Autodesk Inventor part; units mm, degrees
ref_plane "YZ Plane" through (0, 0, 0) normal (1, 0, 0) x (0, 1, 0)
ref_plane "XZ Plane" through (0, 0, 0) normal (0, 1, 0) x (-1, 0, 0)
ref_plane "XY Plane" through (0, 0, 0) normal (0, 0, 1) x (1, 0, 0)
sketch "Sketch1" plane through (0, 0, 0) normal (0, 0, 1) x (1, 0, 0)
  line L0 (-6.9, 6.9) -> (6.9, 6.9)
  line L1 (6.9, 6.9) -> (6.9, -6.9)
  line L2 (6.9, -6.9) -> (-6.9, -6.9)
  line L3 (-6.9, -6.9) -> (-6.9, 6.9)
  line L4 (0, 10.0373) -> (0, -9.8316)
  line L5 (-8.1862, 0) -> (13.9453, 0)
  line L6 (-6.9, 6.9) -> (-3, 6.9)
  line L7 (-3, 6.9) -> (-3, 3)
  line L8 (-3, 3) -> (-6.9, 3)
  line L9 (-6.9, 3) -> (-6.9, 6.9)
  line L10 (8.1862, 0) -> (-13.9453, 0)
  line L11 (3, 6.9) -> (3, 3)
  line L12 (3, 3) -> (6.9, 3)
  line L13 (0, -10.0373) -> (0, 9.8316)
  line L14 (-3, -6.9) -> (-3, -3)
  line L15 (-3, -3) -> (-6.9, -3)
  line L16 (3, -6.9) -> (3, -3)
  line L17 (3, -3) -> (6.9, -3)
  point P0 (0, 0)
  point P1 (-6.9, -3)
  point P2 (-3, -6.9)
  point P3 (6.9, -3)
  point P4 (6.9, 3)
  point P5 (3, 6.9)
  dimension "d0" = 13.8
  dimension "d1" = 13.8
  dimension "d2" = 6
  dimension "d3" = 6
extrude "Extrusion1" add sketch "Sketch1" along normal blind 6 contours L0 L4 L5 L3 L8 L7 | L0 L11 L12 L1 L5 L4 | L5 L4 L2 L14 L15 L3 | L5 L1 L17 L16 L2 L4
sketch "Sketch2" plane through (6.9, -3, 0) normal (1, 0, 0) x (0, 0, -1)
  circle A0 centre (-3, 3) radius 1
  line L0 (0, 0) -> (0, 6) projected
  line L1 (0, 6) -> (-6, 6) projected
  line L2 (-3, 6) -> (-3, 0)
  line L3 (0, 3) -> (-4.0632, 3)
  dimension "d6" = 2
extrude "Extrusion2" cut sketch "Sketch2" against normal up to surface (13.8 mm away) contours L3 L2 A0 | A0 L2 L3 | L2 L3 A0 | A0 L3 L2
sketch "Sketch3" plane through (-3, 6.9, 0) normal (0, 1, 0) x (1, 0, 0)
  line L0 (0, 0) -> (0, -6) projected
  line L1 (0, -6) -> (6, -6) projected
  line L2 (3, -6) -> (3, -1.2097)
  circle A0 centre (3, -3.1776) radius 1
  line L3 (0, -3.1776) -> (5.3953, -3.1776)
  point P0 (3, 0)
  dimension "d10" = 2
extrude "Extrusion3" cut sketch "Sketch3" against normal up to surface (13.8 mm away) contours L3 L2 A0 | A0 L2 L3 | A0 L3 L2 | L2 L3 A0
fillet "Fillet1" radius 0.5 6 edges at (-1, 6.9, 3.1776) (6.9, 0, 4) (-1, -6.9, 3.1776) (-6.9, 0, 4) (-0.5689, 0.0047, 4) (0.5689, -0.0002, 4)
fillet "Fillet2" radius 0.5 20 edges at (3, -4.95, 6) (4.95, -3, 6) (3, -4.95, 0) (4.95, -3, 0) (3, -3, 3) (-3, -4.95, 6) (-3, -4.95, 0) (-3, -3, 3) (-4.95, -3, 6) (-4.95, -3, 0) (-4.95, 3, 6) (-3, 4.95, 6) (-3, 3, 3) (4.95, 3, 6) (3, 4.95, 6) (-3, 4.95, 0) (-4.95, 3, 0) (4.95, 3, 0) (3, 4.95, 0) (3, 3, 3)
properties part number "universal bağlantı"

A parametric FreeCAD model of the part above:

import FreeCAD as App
import Part
import Sketcher
from FreeCAD import Vector


def edges_at(feature, points):
    """Names of the edges that pass closest to the given points."""
    edges = feature.Shape.Edges
    near = lambda p: min(range(len(edges)), key=lambda i: edges[i].distToShape(Part.Vertex(*p))[0])
    return sorted({f"Edge{near(p) + 1}" for p in points})

doc = App.newDocument("Part")
body = doc.addObject("PartDesign::Body", "Body")

# Sketch on XY plane
sketch1 = doc.addObject("Sketcher::SketchObject", "Sketch")
body.addObject(sketch1)
sketch1.AttachmentSupport = (doc.XY_Plane, [""])
sketch1.MapMode = "FlatFace"
sketch1.addGeometry(Part.LineSegment(Vector(-3, 6.9, 0), Vector(-3, 3, 0)), False)
sketch1.addGeometry(Part.LineSegment(Vector(-3, 3, 0), Vector(-6.9, 3, 0)), False)
sketch1.addGeometry(Part.LineSegment(Vector(-6.9, 3, 0), Vector(-6.9, -3, 0)), False)
sketch1.addGeometry(Part.LineSegment(Vector(-6.9, -3, 0), Vector(-3, -3, 0)), False)
sketch1.addGeometry(Part.LineSegment(Vector(-3, -3, 0), Vector(-3, -6.9, 0)), False)
sketch1.addGeometry(Part.LineSegment(Vector(-3, -6.9, 0), Vector(3, -6.9, 0)), False)
sketch1.addGeometry(Part.LineSegment(Vector(3, -6.9, 0), Vector(3, -3, 0)), False)
sketch1.addGeometry(Part.LineSegment(Vector(3, -3, 0), Vector(6.9, -3, 0)), False)
sketch1.addGeometry(Part.LineSegment(Vector(6.9, -3, 0), Vector(6.9, 3, 0)), False)
sketch1.addGeometry(Part.LineSegment(Vector(6.9, 3, 0), Vector(3, 3, 0)), False)
sketch1.addGeometry(Part.LineSegment(Vector(3, 3, 0), Vector(3, 6.9, 0)), False)
sketch1.addGeometry(Part.LineSegment(Vector(3, 6.9, 0), Vector(-3, 6.9, 0)), False)
sketch1.addConstraint(Sketcher.Constraint("Coincident", 0, 2, 1, 1))
sketch1.addConstraint(Sketcher.Constraint("Coincident", 1, 2, 2, 1))
sketch1.addConstraint(Sketcher.Constraint("Coincident", 2, 2, 3, 1))
sketch1.addConstraint(Sketcher.Constraint("Coincident", 3, 2, 4, 1))
sketch1.addConstraint(Sketcher.Constraint("Coincident", 4, 2, 5, 1))
sketch1.addConstraint(Sketcher.Constraint("Coincident", 5, 2, 6, 1))
sketch1.addConstraint(Sketcher.Constraint("Coincident", 6, 2, 7, 1))
sketch1.addConstraint(Sketcher.Constraint("Coincident", 7, 2, 8, 1))
sketch1.addConstraint(Sketcher.Constraint("Coincident", 8, 2, 9, 1))
sketch1.addConstraint(Sketcher.Constraint("Coincident", 9, 2, 10, 1))
sketch1.addConstraint(Sketcher.Constraint("Coincident", 10, 2, 11, 1))
sketch1.addConstraint(Sketcher.Constraint("Coincident", 11, 2, 0, 1))
sketch1.addConstraint(Sketcher.Constraint("Vertical", 0))
sketch1.addConstraint(Sketcher.Constraint("Horizontal", 1))
sketch1.addConstraint(Sketcher.Constraint("Vertical", 2))
sketch1.addConstraint(Sketcher.Constraint("Horizontal", 3))
sketch1.addConstraint(Sketcher.Constraint("Vertical", 4))
sketch1.addConstraint(Sketcher.Constraint("Horizontal", 5))
sketch1.addConstraint(Sketcher.Constraint("Vertical", 6))
sketch1.addConstraint(Sketcher.Constraint("Horizontal", 7))
sketch1.addConstraint(Sketcher.Constraint("Vertical", 8))
sketch1.addConstraint(Sketcher.Constraint("Horizontal", 9))
sketch1.addConstraint(Sketcher.Constraint("Vertical", 10))
sketch1.addConstraint(Sketcher.Constraint("Horizontal", 11))
sketch1.addConstraint(Sketcher.Constraint("Symmetric", 0, 2, 6, 2, -1, 1))
sketch1.addConstraint(Sketcher.Constraint("Symmetric", 2, 2, 8, 2, -1, 1))
sketch1.addConstraint(Sketcher.Constraint("Symmetric", 4, 2, 10, 2, -1, 1))
sketch1.addConstraint(Sketcher.Constraint("Symmetric", 3, 2, 6, 2, -2))
sketch1.addConstraint(Sketcher.Constraint("Equal", 9, 0))
sketch1.addConstraint(Sketcher.Constraint("Equal", 11, 2))
sketch1.addConstraint(Sketcher.Constraint("DistanceX", 5, 1, 5, 2, 6.0))
sketch1.addConstraint(Sketcher.Constraint("DistanceX", 1, 2, 1, 1, 3.9))
pad1 = doc.addObject("PartDesign::Pad", "Pad")
body.addObject(pad1)
pad1.Profile = sketch1
pad1.Length = 6

# Sketch on YZ plane
sketch2 = doc.addObject("Sketcher::SketchObject", "Sketch001")
body.addObject(sketch2)
sketch2.AttachmentSupport = (doc.YZ_Plane, [""])
sketch2.MapMode = "FlatFace"
sketch2.AttachmentOffset = App.Placement(Vector(0, 0, 6.9), App.Rotation())
sketch2.addGeometry(Part.Circle(Vector(0, 3, 0), Vector(0, 0, 1), 1), False)
sketch2.addConstraint(Sketcher.Constraint("PointOnObject", 0, 3, -2))
sketch2.addConstraint(Sketcher.Constraint("Diameter", 0, 2.0))
sketch2.addConstraint(Sketcher.Constraint("DistanceY", -1, 1, 0, 3, 3.0))
pocket1 = doc.addObject("PartDesign::Pocket", "Pocket")
body.addObject(pocket1)
pocket1.Profile = sketch2
pocket1.Length = 13.8

# Sketch on XZ plane
sketch3 = doc.addObject("Sketcher::SketchObject", "Sketch002")
body.addObject(sketch3)
sketch3.AttachmentSupport = (doc.XZ_Plane, [""])
sketch3.MapMode = "FlatFace"
sketch3.AttachmentOffset = App.Placement(Vector(0, 0, -6.9), App.Rotation())
sketch3.addGeometry(Part.Circle(Vector(0, 3.2, 0), Vector(0, 0, 1), 1), False)
sketch3.addConstraint(Sketcher.Constraint("PointOnObject", 0, 3, -2))
sketch3.addConstraint(Sketcher.Constraint("Diameter", 0, 2.0))
sketch3.addConstraint(Sketcher.Constraint("DistanceY", -1, 1, 0, 3, 3.1776))
pocket2 = doc.addObject("PartDesign::Pocket", "Pocket001")
body.addObject(pocket2)
pocket2.Profile = sketch3
pocket2.Length = 13.8
pocket2.Reversed = True
doc.recompute()

fillet = doc.addObject("PartDesign::Fillet", "Fillet")
body.addObject(fillet)
fillet.Base = (pocket2, edges_at(pocket2, [
    (-1, 6.9, 3.178),
    (6.9, 0, 4),
    (-1, -6.9, 3.178),
    (-6.9, 0, 4),
    (-0.569, 0.005, 4),
    (0.569, 0, 4),
]))
fillet.Radius = 0.5
doc.recompute()

fillet2 = doc.addObject("PartDesign::Fillet", "Fillet001")
body.addObject(fillet2)
fillet2.Base = (fillet, edges_at(fillet, [
    (3, -4.95, 6),
    (4.95, -3, 6),
    (3, -4.95, 0),
    (4.95, -3, 0),
    (3, -3, 3),
    (-3, -4.95, 6),
    (-3, -4.95, 0),
    (-3, -3, 3),
    (-4.95, -3, 6),
    (-4.95, -3, 0),
    (-4.95, 3, 6),
    (-3, 4.95, 6),
    (-3, 3, 3),
    (4.95, 3, 6),
    (3, 4.95, 6),
    (-3, 4.95, 0),
    (-4.95, 3, 0),
    (4.95, 3, 0),
    (3, 4.95, 0),
    (3, 3, 3),
]))
fillet2.Radius = 0.5

doc.recompute()
